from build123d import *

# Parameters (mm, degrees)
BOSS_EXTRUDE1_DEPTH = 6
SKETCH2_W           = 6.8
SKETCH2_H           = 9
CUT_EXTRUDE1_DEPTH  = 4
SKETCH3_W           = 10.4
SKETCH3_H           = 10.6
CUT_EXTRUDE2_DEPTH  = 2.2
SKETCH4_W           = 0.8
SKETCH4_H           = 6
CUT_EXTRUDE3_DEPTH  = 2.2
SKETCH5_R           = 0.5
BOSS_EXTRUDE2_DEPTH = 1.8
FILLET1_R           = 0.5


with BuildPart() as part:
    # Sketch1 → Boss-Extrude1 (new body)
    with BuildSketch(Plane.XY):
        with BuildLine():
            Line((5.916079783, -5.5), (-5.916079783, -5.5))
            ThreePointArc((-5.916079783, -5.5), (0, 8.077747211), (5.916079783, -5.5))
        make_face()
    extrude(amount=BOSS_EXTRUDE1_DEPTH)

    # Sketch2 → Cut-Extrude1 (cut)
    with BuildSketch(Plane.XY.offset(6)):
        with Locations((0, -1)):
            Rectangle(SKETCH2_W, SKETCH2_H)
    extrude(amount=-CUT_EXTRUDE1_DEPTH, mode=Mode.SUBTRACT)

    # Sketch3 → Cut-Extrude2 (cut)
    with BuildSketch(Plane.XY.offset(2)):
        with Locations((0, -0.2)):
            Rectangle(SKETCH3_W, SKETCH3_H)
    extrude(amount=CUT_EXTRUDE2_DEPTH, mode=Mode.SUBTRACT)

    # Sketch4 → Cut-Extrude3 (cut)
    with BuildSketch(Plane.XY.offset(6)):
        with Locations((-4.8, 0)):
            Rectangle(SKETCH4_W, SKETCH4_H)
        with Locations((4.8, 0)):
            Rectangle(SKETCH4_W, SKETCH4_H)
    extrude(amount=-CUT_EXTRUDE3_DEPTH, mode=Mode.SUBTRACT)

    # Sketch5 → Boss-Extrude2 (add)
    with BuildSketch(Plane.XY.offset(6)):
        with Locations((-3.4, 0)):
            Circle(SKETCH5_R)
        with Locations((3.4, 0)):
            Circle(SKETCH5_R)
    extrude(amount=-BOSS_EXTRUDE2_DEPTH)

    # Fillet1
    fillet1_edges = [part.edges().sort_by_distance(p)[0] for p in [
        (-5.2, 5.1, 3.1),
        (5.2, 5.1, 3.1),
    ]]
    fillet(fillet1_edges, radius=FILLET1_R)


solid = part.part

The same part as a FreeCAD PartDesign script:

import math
import FreeCAD as App
import Part
import Sketcher

V = App.Vector


def edges_at(feature, points):
    """Names of the edges that pass closest to the given points."""
    edges = feature.Shape.Edges
    near = lambda p: min(range(len(edges)), key=lambda i: edges[i].distToShape(Part.Vertex(*p))[0])
    return sorted({f"Edge{near(p) + 1}" for p in points})

doc = App.newDocument("Part")
body = doc.addObject("PartDesign::Body", "Body")

sketch1 = body.newObject("Sketcher::SketchObject", "Sketch")
sketch1.AttachmentSupport = (doc.getObject("XY_Plane"), [""])
sketch1.MapMode = "FlatFace"
sketch1.addGeometry(Part.LineSegment(V(-6, -6, 0), V(6, -6, 0)), False)
sketch1.addGeometry(Part.ArcOfCircle(Part.Circle(V(0, 0, 0), V(0, 0, 1), 8), math.radians(-43), math.radians(223)), False)
sketch1.addConstraint(Sketcher.Constraint("Coincident", 0, 1, 1, 2))
sketch1.addConstraint(Sketcher.Constraint("Coincident", 1, 1, 0, 2))
sketch1.addConstraint(Sketcher.Constraint("Horizontal", 0))
sketch1.addConstraint(Sketcher.Constraint("Coincident", 1, 3, -1, 1))
sketch1.addConstraint(Sketcher.Constraint("DistanceY", 0, 1, -1, 1, 5.5))
sketch1.addConstraint(Sketcher.Constraint("Radius", 1, 8.077747))
pad1 = body.newObject("PartDesign::Pad", "Pad")
pad1.Profile = sketch1
pad1.Length = 6

sketch2 = body.newObject("Sketcher::SketchObject", "Sketch001")
sketch2.AttachmentSupport = (doc.getObject("XY_Plane"), [""])
sketch2.MapMode = "FlatFace"
sketch2.AttachmentOffset = App.Placement(V(0, 0, 6), App.Rotation())
sketch2.addGeometry(Part.LineSegment(V(-3, 4, 0), V(-3, -6, 0)), False)
sketch2.addGeometry(Part.LineSegment(V(-3, -6, 0), V(3, -6, 0)), False)
sketch2.addGeometry(Part.LineSegment(V(3, -6, 0), V(3, 4, 0)), False)
sketch2.addGeometry(Part.LineSegment(V(3, 4, 0), V(-3, 4, 0)), False)
sketch2.addConstraint(Sketcher.Constraint("Coincident", 0, 2, 1, 1))
sketch2.addConstraint(Sketcher.Constraint("Coincident", 1, 2, 2, 1))
sketch2.addConstraint(Sketcher.Constraint("Coincident", 2, 2, 3, 1))
sketch2.addConstraint(Sketcher.Constraint("Coincident", 3, 2, 0, 1))
sketch2.addConstraint(Sketcher.Constraint("Vertical", 0))
sketch2.addConstraint(Sketcher.Constraint("Horizontal", 1))
sketch2.addConstraint(Sketcher.Constraint("Vertical", 2))
sketch2.addConstraint(Sketcher.Constraint("Horizontal", 3))
sketch2.addConstraint(Sketcher.Constraint("DistanceY", 0, 2, 0, 1, 9.0))
sketch2.addConstraint(Sketcher.Constraint("DistanceX", 1, 1, 1, 2, 6.8))
sketch2.addConstraint(Sketcher.Constraint("DistanceX", 0, 2, -1, 1, 3.4))
sketch2.addConstraint(Sketcher.Constraint("DistanceY", 0, 2, -1, 1, 5.5))
pocket1 = body.newObject("PartDesign::Pocket", "Pocket")
pocket1.Profile = sketch2
pocket1.Length = 4

sketch3 = body.newObject("Sketcher::SketchObject", "Sketch002")
sketch3.AttachmentSupport = (doc.getObject("XY_Plane"), [""])
sketch3.MapMode = "FlatFace"
sketch3.AttachmentOffset = App.Placement(V(0, 0, 2), App.Rotation())
sketch3.addGeometry(Part.LineSegment(V(-5, 5, 0), V(-5, -6, 0)), False)
sketch3.addGeometry(Part.LineSegment(V(-5, -6, 0), V(5, -6, 0)), False)
sketch3.addGeometry(Part.LineSegment(V(5, -6, 0), V(5, 5, 0)), False)
sketch3.addGeometry(Part.LineSegment(V(5, 5, 0), V(-5, 5, 0)), False)
sketch3.addConstraint(Sketcher.Constraint("Coincident", 0, 2, 1, 1))
sketch3.addConstraint(Sketcher.Constraint("Coincident", 1, 2, 2, 1))
sketch3.addConstraint(Sketcher.Constraint("Coincident", 2, 2, 3, 1))
sketch3.addConstraint(Sketcher.Constraint("Coincident", 3, 2, 0, 1))
sketch3.addConstraint(Sketcher.Constraint("Vertical", 0))
sketch3.addConstraint(Sketcher.Constraint("Horizontal", 1))
sketch3.addConstraint(Sketcher.Constraint("Vertical", 2))
sketch3.addConstraint(Sketcher.Constraint("Horizontal", 3))
sketch3.addConstraint(Sketcher.Constraint("DistanceX", 1, 1, 1, 2, 10.4))
sketch3.addConstraint(Sketcher.Constraint("DistanceY", 0, 2, 0, 1, 10.6))
sketch3.addConstraint(Sketcher.Constraint("DistanceX", 0, 2, -1, 1, 5.2))
sketch3.addConstraint(Sketcher.Constraint("DistanceY", 0, 2, -1, 1, 5.5))
pocket2 = body.newObject("PartDesign::Pocket", "Pocket001")
pocket2.Profile = sketch3
pocket2.Length = 2.2
pocket2.Reversed = True

sketch4 = body.newObject("Sketcher::SketchObject", "Sketch003")
sketch4.AttachmentSupport = (doc.getObject("XY_Plane"), [""])
sketch4.MapMode = "FlatFace"
sketch4.AttachmentOffset = App.Placement(V(0, 0, 6), App.Rotation())
sketch4.addGeometry(Part.LineSegment(V(-5.2, 3, 0), V(-5.2, -3, 0)), False)
sketch4.addGeometry(Part.LineSegment(V(-5.2, -3, 0), V(-4.4, -3, 0)), False)
sketch4.addGeometry(Part.LineSegment(V(-4.4, -3, 0), V(-4.4, 3, 0)), False)
sketch4.addGeometry(Part.LineSegment(V(-4.4, 3, 0), V(-5.2, 3, 0)), False)
sketch4.addGeometry(Part.LineSegment(V(4.4, 3, 0), V(4.4, -3, 0)), False)
sketch4.addGeometry(Part.LineSegment(V(4.4, -3, 0), V(5.2, -3, 0)), False)
sketch4.addGeometry(Part.LineSegment(V(5.2, -3, 0), V(5.2, 3, 0)), False)
sketch4.addGeometry(Part.LineSegment(V(5.2, 3, 0), V(4.4, 3, 0)), False)
sketch4.addConstraint(Sketcher.Constraint("Coincident", 0, 2, 1, 1))
sketch4.addConstraint(Sketcher.Constraint("Coincident", 1, 2, 2, 1))
sketch4.addConstraint(Sketcher.Constraint("Coincident", 2, 2, 3, 1))
sketch4.addConstraint(Sketcher.Constraint("Coincident", 3, 2, 0, 1))
sketch4.addConstraint(Sketcher.Constraint("Coincident", 4, 2, 5, 1))
sketch4.addConstraint(Sketcher.Constraint("Coincident", 5, 2, 6, 1))
sketch4.addConstraint(Sketcher.Constraint("Coincident", 6, 2, 7, 1))
sketch4.addConstraint(Sketcher.Constraint("Coincident", 7, 2, 4, 1))
sketch4.addConstraint(Sketcher.Constraint("Vertical", 0))
sketch4.addConstraint(Sketcher.Constraint("Horizontal", 1))
sketch4.addConstraint(Sketcher.Constraint("Vertical", 2))
sketch4.addConstraint(Sketcher.Constraint("Horizontal", 3))
sketch4.addConstraint(Sketcher.Constraint("Vertical", 4))
sketch4.addConstraint(Sketcher.Constraint("Horizontal", 5))
sketch4.addConstraint(Sketcher.Constraint("Vertical", 6))
sketch4.addConstraint(Sketcher.Constraint("Horizontal", 7))
sketch4.addConstraint(Sketcher.Constraint("Symmetric", 2, 2, 4, 2, -1, 1))
sketch4.addConstraint(Sketcher.Constraint("Symmetric", 0, 2, 6, 2, -1, 1))
sketch4.addConstraint(Sketcher.Constraint("Horizontal", 1, 2, 4, 2))
sketch4.addConstraint(Sketcher.Constraint("DistanceY", 0, 2, 0, 1, 6.0))
sketch4.addConstraint(Sketcher.Constraint("DistanceX", 1, 1, 1, 2, 0.8))
sketch4.addConstraint(Sketcher.Constraint("DistanceX", 0, 2, -1, 1, 5.2))
pocket3 = body.newObject("PartDesign::Pocket", "Pocket002")
pocket3.Profile = sketch4
pocket3.Length = 2.2

sketch5 = body.newObject("Sketcher::SketchObject", "Sketch004")
sketch5.AttachmentSupport = (doc.getObject("XY_Plane"), [""])
sketch5.MapMode = "FlatFace"
sketch5.AttachmentOffset = App.Placement(V(0, 0, 6), App.Rotation())
sketch5.addGeometry(Part.Circle(V(-3.4, 0, 0), V(0, 0, 1), 0.5), False)
sketch5.addGeometry(Part.Circle(V(3.4, 0, 0), V(0, 0, 1), 0.5), False)
sketch5.addConstraint(Sketcher.Constraint("Equal", 0, 1))
sketch5.addConstraint(Sketcher.Constraint("Symmetric", 0, 3, 1, 3, -1, 1))
sketch5.addConstraint(Sketcher.Constraint("PointOnObject", 0, 3, -1))
sketch5.addConstraint(Sketcher.Constraint("Diameter", 0, 1.0))
sketch5.addConstraint(Sketcher.Constraint("DistanceX", 0, 3, -1, 1, 3.4))
pad2 = body.newObject("PartDesign::Pad", "Pad001")
pad2.Profile = sketch5
pad2.Length = 1.8
pad2.Reversed = True
doc.recompute()

fillet = body.newObject("PartDesign::Fillet", "Fillet")
fillet.Base = (pad2, edges_at(pad2, [(-5.2, 5.1, 3.1), (5.2, 5.1, 3.1)]))
fillet.Radius = 0.5

doc.recompute()
